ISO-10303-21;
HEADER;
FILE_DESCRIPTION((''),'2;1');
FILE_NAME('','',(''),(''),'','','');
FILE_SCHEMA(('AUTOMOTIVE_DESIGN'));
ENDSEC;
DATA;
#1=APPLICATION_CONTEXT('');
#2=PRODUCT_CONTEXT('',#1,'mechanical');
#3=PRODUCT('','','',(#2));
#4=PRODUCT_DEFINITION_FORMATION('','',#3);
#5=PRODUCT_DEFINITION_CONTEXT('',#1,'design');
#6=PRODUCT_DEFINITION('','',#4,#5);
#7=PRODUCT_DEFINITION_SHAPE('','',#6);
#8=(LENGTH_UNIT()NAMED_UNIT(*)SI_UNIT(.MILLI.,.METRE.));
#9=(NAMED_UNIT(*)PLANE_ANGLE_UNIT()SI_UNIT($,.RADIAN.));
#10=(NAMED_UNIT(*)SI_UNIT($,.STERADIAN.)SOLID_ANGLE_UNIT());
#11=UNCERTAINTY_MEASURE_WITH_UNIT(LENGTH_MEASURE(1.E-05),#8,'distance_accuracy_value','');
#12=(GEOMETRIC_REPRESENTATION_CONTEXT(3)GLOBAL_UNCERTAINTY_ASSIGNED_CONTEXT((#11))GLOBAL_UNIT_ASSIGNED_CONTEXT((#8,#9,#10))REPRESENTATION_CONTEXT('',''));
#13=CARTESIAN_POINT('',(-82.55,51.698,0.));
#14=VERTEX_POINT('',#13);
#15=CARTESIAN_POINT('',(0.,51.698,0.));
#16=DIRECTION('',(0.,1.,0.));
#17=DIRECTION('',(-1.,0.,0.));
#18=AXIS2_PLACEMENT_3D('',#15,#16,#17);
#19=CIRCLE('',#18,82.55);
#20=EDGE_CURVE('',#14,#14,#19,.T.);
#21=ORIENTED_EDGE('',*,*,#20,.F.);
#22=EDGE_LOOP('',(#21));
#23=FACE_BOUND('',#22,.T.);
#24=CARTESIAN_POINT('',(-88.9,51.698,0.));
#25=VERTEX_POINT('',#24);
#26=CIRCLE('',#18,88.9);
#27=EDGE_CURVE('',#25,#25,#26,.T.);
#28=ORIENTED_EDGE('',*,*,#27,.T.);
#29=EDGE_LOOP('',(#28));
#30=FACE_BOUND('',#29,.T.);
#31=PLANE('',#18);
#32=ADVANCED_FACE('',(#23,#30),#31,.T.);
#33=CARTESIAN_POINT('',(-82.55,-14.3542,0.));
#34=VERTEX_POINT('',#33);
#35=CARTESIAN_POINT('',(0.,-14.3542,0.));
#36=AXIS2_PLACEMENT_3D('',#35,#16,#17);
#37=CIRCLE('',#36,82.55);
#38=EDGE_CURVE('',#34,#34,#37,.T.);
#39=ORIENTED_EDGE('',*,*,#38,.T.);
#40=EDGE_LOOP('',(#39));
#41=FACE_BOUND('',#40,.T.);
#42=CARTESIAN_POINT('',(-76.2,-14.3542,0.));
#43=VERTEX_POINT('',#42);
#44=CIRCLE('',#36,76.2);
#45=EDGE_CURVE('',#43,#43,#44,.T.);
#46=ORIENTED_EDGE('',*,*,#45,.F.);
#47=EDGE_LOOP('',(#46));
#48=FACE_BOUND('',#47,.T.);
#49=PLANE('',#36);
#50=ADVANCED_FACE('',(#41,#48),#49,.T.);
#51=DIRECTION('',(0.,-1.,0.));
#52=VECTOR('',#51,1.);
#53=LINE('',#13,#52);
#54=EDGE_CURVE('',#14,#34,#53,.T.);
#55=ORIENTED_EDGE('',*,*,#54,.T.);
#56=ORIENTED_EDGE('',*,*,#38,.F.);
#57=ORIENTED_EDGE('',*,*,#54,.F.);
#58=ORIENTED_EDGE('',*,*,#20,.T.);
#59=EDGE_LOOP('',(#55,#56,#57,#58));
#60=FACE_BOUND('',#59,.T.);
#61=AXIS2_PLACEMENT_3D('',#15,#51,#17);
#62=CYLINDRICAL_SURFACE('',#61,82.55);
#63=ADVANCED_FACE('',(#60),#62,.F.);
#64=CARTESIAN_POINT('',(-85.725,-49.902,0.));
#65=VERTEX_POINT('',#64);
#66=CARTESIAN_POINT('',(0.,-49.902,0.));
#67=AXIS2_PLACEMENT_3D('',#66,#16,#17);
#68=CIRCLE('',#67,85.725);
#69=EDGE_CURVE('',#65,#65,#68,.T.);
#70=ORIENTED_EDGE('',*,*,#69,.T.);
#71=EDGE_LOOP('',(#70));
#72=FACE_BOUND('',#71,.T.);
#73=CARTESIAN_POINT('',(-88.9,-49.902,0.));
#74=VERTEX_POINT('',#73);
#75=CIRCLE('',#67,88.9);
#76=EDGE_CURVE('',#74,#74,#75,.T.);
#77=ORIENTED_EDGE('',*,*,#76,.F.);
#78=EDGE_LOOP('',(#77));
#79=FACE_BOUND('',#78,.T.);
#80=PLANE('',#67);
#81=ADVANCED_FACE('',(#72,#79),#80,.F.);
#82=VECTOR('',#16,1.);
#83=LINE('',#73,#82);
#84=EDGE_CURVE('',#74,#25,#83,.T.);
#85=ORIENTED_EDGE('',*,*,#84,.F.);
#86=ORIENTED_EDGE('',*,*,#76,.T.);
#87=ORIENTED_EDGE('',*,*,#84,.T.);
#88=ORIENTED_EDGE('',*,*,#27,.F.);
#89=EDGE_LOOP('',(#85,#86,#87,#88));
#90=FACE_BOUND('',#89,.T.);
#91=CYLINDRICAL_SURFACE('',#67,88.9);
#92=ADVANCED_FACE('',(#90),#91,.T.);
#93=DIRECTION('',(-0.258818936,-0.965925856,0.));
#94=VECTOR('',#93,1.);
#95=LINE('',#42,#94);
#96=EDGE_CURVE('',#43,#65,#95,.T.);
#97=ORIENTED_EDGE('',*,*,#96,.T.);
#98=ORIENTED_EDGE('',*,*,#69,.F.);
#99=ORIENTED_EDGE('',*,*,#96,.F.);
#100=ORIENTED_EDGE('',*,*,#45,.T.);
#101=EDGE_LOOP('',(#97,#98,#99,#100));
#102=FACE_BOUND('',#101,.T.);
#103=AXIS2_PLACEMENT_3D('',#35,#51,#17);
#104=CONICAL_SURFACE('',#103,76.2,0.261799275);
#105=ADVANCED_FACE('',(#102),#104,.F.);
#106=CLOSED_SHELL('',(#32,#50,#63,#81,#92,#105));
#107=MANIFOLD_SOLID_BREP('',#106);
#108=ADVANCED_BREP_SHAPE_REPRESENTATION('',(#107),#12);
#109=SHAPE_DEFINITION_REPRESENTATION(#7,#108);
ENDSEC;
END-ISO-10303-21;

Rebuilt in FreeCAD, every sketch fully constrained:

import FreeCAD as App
import Part
import Sketcher
from FreeCAD import Vector
Q = App.Units.Quantity

doc = App.newDocument("Part")
body = doc.addObject("PartDesign::Body", "Body")

sketch1 = body.newObject("Sketcher::SketchObject", "Sketch")
sketch1.AttachmentSupport = (doc.getObject("XY_Plane"), [""])
sketch1.MapMode = "FlatFace"
sketch1.addGeometry([
    Part.LineSegment(Vector(-82.5, -14.4, 0), Vector(-82.5, 51.7, 0)),
    Part.LineSegment(Vector(-82.5, 51.7, 0), Vector(-88.9, 51.7, 0)),
    Part.LineSegment(Vector(-88.9, 51.7, 0), Vector(-88.9, -49.9, 0)),
    Part.LineSegment(Vector(-88.9, -49.9, 0), Vector(-85.7, -49.9, 0)),
    Part.LineSegment(Vector(-85.7, -49.9, 0), Vector(-76.2, -14.4, 0)),
    Part.LineSegment(Vector(-76.2, -14.4, 0), Vector(-82.5, -14.4, 0)),
], False)
sketch1.addConstraint([
    Sketcher.Constraint("Coincident", 0, 2, 1, 1),
    Sketcher.Constraint("Coincident", 1, 2, 2, 1),
    Sketcher.Constraint("Coincident", 2, 2, 3, 1),
    Sketcher.Constraint("Coincident", 3, 2, 4, 1),
    Sketcher.Constraint("Coincident", 4, 2, 5, 1),
    Sketcher.Constraint("Coincident", 5, 2, 0, 1),
    Sketcher.Constraint("Vertical", 0),
    Sketcher.Constraint("Horizontal", 1),
    Sketcher.Constraint("Vertical", 2),
    Sketcher.Constraint("Horizontal", 3),
    Sketcher.Constraint("Horizontal", 5),
    Sketcher.Constraint("Equal", 1, 5),
    Sketcher.Constraint("DistanceY", 2, 2, 2, 1, Q("4 in")),
    Sketcher.Constraint("DistanceX", 4, 2, -1, 1, Q("3 in")),
    Sketcher.Constraint("DistanceX", 1, 2, 1, 1, Q("0.25 in")),
    Sketcher.Constraint("DistanceX", 3, 1, 3, 2, Q("0.125 in")),
    Sketcher.Constraint("Angle", 4, Q("75 deg")),
    Sketcher.Constraint("DistanceY", -1, 1, 0, 2, Q("51.698 mm")),
])
revolution = body.newObject("PartDesign::Revolution", "Revolution")
revolution.Profile = sketch1
revolution.ReferenceAxis = (sketch1, ["V_Axis"])
revolution.Angle = 360

doc.recompute()
